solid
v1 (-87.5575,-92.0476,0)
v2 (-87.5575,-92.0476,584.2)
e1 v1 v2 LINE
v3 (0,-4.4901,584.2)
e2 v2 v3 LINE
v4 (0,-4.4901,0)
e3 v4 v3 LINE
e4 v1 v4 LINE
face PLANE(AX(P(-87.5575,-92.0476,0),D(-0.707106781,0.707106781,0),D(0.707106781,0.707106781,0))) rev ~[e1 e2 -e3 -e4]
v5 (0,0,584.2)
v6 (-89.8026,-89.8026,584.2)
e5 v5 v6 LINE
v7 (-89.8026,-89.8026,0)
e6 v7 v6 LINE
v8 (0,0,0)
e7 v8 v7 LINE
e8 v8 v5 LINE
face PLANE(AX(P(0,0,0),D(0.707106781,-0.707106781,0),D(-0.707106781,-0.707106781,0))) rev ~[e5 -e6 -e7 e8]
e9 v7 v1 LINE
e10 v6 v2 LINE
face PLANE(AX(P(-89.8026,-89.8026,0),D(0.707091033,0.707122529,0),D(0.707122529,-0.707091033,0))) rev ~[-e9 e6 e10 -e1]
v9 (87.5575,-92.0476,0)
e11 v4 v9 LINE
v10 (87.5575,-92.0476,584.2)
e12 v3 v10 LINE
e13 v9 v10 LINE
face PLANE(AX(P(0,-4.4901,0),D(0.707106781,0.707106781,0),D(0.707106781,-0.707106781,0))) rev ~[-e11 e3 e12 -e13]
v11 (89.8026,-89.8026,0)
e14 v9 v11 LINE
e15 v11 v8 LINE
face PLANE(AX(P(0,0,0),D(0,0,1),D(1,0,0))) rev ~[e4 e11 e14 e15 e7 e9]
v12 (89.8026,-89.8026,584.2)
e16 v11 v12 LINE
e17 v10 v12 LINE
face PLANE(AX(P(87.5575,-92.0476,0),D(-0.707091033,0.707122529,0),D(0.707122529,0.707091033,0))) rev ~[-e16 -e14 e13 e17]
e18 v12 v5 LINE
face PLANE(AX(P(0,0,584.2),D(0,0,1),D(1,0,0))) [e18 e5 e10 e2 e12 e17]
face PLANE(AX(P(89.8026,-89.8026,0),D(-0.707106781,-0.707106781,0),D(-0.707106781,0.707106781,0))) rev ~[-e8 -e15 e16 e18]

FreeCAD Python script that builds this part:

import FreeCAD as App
import Part
import Sketcher
Q = App.Units.Quantity


def add_polygon(sketch, points):
    """Adds a closed chain of lines whose ends are joined by coincident constraints."""
    first, n = sketch.GeometryCount, len(points)
    for a, b in zip(points, points[1:] + points[:1]):
        sketch.addGeometry(Part.LineSegment(App.Vector(*a, 0), App.Vector(*b, 0)), False)
    for i in range(n):
        sketch.addConstraint(Sketcher.Constraint("Coincident", first + i, 2, first + (i + 1) % n, 1))

doc = App.newDocument("Part")
body = doc.addObject("PartDesign::Body", "Body")

# Sketch on XY plane
sketch1 = body.newObject("Sketcher::SketchObject", "Sketch")
sketch1.AttachmentSupport = (doc.getObject("XY_Plane"), [""])
sketch1.MapMode = "FlatFace"
add_polygon(sketch1, [(89.8, -89.8), (0, 0), (-89.8, -89.8), (-87.6, -92), (0, -4.5), (87.6, -92)])  # lines 0-5
sketch1.addConstraint(Sketcher.Constraint("Coincident", 0, 2, -1, 1))
sketch1.addConstraint(Sketcher.Constraint("Symmetric", 2, 2, 4, 2, -2))
sketch1.addConstraint(Sketcher.Constraint("Symmetric", 1, 2, 5, 2, -2))
sketch1.addConstraint(Sketcher.Constraint("PointOnObject", 3, 2, -2))
sketch1.addConstraint(Sketcher.Constraint("Perpendicular", 0, 1))
sketch1.addConstraint(Sketcher.Constraint("Perpendicular", 1, 2))
sketch1.addConstraint(Sketcher.Constraint("Perpendicular", 2, 3))
sketch1.addConstraint(Sketcher.Constraint("Distance", 0, Q("5 in")))
sketch1.addConstraint(Sketcher.Constraint("Distance", 2, Q("0.125 in")))
pad1 = body.newObject("PartDesign::Pad", "Pad")
pad1.Profile = sketch1
pad1.Length = Q("23 in")

doc.recompute()
